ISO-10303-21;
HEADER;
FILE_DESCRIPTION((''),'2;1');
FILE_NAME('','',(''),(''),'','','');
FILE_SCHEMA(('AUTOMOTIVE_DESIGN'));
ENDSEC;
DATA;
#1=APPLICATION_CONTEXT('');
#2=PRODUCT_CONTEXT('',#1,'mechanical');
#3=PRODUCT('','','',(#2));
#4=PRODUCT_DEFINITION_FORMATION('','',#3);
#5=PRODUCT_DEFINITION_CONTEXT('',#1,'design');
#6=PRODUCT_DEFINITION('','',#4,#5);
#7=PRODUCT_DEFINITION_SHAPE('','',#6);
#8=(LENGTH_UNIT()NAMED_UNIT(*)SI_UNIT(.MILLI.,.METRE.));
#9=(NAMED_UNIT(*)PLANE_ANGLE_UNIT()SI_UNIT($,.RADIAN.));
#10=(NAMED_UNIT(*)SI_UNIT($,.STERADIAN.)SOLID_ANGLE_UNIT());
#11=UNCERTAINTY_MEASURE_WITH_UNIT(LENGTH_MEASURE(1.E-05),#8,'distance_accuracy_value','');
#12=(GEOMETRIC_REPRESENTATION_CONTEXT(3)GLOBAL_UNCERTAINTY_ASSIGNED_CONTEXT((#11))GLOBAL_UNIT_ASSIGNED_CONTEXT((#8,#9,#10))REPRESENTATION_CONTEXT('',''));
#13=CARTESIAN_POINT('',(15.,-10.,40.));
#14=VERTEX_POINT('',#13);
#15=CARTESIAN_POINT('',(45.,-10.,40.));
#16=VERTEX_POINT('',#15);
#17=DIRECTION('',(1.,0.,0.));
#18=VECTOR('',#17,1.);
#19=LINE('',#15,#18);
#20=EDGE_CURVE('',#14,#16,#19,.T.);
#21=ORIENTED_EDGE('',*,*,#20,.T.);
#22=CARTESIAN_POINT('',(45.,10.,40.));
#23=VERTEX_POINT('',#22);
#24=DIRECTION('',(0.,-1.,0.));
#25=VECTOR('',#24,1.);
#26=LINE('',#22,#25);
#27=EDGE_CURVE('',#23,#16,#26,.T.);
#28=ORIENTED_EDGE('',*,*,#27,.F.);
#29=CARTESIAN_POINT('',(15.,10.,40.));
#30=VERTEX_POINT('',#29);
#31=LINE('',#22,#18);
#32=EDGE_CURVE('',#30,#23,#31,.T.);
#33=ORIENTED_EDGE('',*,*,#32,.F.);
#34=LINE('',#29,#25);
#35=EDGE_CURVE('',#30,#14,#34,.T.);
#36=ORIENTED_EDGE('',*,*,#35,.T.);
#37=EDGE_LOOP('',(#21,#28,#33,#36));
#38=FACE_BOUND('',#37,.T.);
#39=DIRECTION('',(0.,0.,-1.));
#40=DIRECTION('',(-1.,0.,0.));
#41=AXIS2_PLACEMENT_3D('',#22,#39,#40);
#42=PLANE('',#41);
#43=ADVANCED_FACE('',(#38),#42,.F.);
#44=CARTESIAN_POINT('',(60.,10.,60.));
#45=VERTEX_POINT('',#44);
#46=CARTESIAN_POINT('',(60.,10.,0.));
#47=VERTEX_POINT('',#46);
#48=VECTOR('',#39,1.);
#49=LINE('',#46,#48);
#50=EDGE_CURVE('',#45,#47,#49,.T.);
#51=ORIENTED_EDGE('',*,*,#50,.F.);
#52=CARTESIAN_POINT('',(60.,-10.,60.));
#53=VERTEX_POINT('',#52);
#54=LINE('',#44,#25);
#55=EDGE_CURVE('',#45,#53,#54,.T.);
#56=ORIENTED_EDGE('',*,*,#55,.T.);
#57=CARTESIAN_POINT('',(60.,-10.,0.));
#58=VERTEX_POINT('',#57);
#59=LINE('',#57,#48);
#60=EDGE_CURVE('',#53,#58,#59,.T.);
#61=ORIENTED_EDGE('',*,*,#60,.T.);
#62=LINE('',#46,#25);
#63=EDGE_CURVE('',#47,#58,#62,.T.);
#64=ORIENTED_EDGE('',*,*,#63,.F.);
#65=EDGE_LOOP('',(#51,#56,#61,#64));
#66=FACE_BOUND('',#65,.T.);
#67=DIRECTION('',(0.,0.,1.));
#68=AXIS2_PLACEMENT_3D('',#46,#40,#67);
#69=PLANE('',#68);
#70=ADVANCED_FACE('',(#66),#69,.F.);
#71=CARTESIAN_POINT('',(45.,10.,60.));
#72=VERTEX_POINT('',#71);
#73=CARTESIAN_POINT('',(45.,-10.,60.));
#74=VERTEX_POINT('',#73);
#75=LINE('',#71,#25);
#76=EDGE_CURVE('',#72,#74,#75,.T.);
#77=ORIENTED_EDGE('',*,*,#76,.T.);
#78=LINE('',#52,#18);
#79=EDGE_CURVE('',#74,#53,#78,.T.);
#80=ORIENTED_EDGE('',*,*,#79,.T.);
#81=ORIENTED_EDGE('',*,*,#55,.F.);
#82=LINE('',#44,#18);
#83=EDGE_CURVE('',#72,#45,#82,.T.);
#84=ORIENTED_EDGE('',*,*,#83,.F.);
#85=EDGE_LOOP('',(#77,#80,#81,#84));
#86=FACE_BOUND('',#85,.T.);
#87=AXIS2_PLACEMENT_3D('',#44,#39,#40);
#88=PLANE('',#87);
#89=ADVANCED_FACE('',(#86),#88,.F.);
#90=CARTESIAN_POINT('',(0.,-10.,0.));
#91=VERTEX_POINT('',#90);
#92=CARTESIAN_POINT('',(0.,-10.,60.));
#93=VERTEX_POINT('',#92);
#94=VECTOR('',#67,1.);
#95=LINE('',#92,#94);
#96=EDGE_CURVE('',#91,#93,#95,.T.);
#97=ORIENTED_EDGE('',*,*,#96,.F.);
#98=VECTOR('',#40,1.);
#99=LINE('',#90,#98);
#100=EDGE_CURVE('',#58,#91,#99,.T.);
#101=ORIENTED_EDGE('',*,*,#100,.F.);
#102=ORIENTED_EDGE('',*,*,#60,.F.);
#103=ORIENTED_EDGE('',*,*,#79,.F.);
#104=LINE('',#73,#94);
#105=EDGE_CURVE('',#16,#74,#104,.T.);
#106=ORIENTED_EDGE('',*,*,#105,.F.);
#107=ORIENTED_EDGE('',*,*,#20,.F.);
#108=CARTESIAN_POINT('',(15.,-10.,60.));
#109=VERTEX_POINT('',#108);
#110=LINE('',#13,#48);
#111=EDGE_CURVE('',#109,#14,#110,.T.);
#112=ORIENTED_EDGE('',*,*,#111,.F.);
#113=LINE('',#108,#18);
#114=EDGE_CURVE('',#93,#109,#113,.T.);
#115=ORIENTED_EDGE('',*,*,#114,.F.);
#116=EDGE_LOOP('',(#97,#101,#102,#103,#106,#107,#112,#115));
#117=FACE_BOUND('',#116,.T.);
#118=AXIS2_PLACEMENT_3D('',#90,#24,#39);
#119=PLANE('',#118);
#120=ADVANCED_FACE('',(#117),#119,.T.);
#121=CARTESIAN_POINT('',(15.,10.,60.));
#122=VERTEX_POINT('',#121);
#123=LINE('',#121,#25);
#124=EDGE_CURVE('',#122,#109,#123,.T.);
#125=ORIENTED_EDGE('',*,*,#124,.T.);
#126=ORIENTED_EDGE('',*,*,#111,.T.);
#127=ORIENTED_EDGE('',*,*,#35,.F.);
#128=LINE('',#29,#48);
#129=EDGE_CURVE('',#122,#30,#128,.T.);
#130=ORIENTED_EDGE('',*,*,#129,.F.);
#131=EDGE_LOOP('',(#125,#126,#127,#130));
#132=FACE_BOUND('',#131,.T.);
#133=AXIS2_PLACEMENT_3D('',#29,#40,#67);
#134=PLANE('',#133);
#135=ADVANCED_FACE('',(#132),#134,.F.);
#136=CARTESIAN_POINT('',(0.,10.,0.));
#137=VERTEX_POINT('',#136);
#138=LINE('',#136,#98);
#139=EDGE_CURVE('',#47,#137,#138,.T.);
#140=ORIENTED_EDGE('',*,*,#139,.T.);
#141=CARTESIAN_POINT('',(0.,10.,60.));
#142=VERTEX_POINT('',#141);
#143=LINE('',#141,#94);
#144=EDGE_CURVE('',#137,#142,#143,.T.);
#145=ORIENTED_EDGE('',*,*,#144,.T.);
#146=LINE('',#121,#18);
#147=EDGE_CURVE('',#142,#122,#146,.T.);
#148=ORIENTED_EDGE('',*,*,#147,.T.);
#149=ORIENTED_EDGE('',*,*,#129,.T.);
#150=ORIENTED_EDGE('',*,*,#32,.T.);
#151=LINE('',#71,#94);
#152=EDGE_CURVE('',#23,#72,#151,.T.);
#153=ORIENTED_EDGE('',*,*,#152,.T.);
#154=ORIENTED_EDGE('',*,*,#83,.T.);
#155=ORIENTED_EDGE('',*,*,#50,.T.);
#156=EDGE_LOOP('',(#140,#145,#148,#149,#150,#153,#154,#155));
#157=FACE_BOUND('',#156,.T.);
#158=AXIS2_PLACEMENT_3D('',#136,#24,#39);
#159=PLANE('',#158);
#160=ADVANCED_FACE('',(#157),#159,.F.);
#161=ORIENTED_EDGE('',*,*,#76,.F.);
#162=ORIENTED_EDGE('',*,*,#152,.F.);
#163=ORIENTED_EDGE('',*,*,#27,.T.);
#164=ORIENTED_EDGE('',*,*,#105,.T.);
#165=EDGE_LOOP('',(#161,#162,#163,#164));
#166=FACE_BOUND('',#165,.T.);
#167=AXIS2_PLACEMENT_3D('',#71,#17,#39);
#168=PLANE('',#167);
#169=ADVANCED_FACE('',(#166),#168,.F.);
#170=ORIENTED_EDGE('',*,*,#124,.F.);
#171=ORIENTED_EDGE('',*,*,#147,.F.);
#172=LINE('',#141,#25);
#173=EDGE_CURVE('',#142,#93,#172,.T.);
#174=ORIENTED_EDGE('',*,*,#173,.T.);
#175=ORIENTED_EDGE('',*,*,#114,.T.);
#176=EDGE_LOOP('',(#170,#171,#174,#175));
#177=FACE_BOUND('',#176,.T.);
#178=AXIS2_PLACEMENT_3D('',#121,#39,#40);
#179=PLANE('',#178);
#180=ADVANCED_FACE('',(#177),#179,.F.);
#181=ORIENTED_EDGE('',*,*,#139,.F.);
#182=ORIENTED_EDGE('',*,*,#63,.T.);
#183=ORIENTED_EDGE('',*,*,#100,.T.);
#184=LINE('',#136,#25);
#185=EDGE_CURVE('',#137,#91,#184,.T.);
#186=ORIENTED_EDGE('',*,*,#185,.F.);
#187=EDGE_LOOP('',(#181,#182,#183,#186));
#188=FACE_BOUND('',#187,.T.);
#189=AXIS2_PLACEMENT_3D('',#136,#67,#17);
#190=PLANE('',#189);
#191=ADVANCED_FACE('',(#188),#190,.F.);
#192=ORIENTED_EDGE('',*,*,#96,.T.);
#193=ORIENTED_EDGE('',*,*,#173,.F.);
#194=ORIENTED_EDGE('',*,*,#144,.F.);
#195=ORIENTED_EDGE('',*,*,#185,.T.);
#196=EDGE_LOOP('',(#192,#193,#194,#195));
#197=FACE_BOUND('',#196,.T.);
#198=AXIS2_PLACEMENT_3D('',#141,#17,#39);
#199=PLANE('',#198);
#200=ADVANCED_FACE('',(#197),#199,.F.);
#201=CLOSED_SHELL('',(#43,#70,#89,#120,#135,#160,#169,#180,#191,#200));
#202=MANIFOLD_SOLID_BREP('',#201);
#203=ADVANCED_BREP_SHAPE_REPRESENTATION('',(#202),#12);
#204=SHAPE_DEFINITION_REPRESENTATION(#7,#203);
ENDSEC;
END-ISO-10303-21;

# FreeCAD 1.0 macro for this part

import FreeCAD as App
import Part
import Sketcher

doc = App.newDocument("Part")
params = doc.addObject("Spreadsheet::Sheet", "Params")
for row, (alias, value) in enumerate([
    ("sketch1_width", "60 mm"),
    ("sketch1_width2", "15 mm"),
    ("sketch1_height", "20 mm"),
    ("pad1_length", "20 mm"),
], start=1):
    params.set(f"A{row}", alias)
    params.set(f"B{row}", "=" + value)
    params.setAlias(f"B{row}", alias)

body = doc.addObject("PartDesign::Body", "Body")

sketch1 = body.newObject("Sketcher::SketchObject", "Sketch")
sketch1.AttachmentSupport = (doc.getObject("XZ_Plane"), [""])
sketch1.MapMode = "FlatFace"
sketch1.addGeometry([
    Part.LineSegment(App.Vector(60, 0, 0), App.Vector(0, 0, 0)),
    Part.LineSegment(App.Vector(0, 0, 0), App.Vector(0, 60, 0)),
    Part.LineSegment(App.Vector(0, 60, 0), App.Vector(15, 60, 0)),
    Part.LineSegment(App.Vector(15, 60, 0), App.Vector(15, 40, 0)),
    Part.LineSegment(App.Vector(15, 40, 0), App.Vector(45, 40, 0)),
    Part.LineSegment(App.Vector(45, 40, 0), App.Vector(45, 60, 0)),
    Part.LineSegment(App.Vector(45, 60, 0), App.Vector(60, 60, 0)),
    Part.LineSegment(App.Vector(60, 60, 0), App.Vector(60, 0, 0)),
], False)
sketch1.addConstraint([
    Sketcher.Constraint("Coincident", 0, 2, 1, 1),
    Sketcher.Constraint("Coincident", 1, 2, 2, 1),
    Sketcher.Constraint("Coincident", 2, 2, 3, 1),
    Sketcher.Constraint("Coincident", 3, 2, 4, 1),
    Sketcher.Constraint("Coincident", 4, 2, 5, 1),
    Sketcher.Constraint("Coincident", 5, 2, 6, 1),
    Sketcher.Constraint("Coincident", 6, 2, 7, 1),
    Sketcher.Constraint("Coincident", 7, 2, 0, 1),
    Sketcher.Constraint("Horizontal", 0),
    Sketcher.Constraint("Vertical", 1),
    Sketcher.Constraint("Horizontal", 2),
    Sketcher.Constraint("Vertical", 3),
    Sketcher.Constraint("Horizontal", 4),
    Sketcher.Constraint("Vertical", 5),
    Sketcher.Constraint("Horizontal", 6),
    Sketcher.Constraint("Vertical", 7),
    Sketcher.Constraint("Coincident", 0, 2, -1, 1),
    Sketcher.Constraint("Horizontal", 2, 2, 5, 2),
    Sketcher.Constraint("Equal", 2, 6),
    Sketcher.Constraint("Equal", 0, 1),
    Sketcher.Constraint("DistanceX", 0, 2, 0, 1, 60.0),
    Sketcher.Constraint("DistanceX", 2, 1, 2, 2, 15.0),
    Sketcher.Constraint("DistanceY", 3, 2, 3, 1, 20.0),
])
sketch1.setExpression("Constraints[20]", "Params.sketch1_width")
sketch1.setExpression("Constraints[21]", "Params.sketch1_width2")
sketch1.setExpression("Constraints[22]", "Params.sketch1_height")
pad1 = body.newObject("PartDesign::Pad", "Pad")
pad1.Profile = sketch1
pad1.setExpression("Length", "Params.pad1_length")
pad1.Midplane = True

doc.recompute()
